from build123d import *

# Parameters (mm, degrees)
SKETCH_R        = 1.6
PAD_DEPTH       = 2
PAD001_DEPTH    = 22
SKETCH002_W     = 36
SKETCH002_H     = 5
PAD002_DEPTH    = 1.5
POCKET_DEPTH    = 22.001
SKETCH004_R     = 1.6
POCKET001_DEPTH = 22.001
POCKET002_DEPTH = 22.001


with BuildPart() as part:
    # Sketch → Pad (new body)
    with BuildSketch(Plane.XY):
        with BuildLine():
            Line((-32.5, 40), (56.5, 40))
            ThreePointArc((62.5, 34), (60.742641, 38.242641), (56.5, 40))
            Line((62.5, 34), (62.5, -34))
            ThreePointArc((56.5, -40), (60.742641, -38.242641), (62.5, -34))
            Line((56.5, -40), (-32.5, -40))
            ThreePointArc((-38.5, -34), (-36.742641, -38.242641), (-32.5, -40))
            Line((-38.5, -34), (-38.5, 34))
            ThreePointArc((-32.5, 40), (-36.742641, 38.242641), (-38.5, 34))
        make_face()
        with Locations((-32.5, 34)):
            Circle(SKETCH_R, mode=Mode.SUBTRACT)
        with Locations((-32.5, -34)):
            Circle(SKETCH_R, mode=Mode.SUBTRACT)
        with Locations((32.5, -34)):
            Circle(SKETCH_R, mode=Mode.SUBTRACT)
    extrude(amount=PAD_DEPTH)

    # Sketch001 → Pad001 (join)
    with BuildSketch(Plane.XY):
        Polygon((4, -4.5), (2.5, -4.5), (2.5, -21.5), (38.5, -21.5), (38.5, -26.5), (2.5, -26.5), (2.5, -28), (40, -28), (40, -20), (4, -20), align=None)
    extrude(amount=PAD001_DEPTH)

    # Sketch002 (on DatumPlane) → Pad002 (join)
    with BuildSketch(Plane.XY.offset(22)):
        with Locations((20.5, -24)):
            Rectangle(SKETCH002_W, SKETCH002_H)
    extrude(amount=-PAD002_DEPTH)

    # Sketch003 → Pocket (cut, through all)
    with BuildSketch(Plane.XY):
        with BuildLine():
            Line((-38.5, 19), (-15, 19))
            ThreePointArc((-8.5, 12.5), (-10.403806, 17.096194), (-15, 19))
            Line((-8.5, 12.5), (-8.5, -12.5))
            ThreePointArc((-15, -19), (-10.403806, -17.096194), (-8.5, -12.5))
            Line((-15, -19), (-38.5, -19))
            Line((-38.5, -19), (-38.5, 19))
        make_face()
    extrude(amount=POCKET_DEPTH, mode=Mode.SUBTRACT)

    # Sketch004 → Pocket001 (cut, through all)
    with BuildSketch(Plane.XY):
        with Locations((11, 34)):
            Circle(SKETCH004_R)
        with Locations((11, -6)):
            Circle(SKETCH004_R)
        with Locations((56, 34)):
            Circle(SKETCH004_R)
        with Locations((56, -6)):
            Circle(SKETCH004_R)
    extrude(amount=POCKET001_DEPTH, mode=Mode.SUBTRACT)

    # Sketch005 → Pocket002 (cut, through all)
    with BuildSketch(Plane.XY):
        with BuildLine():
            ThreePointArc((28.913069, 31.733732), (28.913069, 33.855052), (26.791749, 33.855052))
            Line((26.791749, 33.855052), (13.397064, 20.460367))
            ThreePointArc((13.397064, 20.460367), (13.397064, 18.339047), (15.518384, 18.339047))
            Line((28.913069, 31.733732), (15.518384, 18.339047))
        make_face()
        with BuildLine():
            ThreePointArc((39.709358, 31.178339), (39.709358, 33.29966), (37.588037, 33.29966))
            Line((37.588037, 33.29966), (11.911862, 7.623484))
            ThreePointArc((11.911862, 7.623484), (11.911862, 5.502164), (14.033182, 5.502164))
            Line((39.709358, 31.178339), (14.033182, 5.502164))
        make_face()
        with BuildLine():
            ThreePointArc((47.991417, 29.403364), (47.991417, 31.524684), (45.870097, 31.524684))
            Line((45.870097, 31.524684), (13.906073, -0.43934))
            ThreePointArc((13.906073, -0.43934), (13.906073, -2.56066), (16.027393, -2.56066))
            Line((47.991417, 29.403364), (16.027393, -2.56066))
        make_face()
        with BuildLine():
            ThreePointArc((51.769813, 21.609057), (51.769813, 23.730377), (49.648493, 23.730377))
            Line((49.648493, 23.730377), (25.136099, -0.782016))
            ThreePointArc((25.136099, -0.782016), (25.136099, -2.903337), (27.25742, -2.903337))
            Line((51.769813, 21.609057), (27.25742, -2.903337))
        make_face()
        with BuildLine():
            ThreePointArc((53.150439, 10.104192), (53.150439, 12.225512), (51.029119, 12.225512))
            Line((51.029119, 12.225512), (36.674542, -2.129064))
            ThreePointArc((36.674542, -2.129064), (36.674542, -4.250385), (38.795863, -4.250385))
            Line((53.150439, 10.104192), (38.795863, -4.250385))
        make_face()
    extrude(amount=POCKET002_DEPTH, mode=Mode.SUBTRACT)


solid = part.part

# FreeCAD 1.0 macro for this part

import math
import FreeCAD as App
import Part
import Sketcher
from FreeCAD import Vector
Q = App.Units.Quantity


def add_polygon(sketch, points):
    """Adds a closed chain of lines whose ends are joined by coincident constraints."""
    first, n = sketch.GeometryCount, len(points)
    for a, b in zip(points, points[1:] + points[:1]):
        sketch.addGeometry(Part.LineSegment(App.Vector(*a, 0), App.Vector(*b, 0)), False)
    for i in range(n):
        sketch.addConstraint(Sketcher.Constraint("Coincident", first + i, 2, first + (i + 1) % n, 1))

doc = App.newDocument("Part")
body = doc.addObject("PartDesign::Body", "Body")

sketch1 = doc.addObject("Sketcher::SketchObject", "Sketch")
body.addObject(sketch1)
sketch1.AttachmentSupport = (doc.XY_Plane, [""])
sketch1.MapMode = "FlatFace"
sketch1.addGeometry([
    Part.LineSegment(Vector(56.5, 40, 0), Vector(-32.5, 40, 0)),
    Part.ArcOfCircle(Part.Circle(Vector(-32.5, 34, 0), Vector(0, 0, 1), 6), math.radians(90), math.radians(180)),
    Part.LineSegment(Vector(-38.5, 34, 0), Vector(-38.5, -34, 0)),
    Part.ArcOfCircle(Part.Circle(Vector(-32.5, -34, 0), Vector(0, 0, 1), 6), math.radians(180), math.radians(270)),
    Part.LineSegment(Vector(-32.5, -40, 0), Vector(56.5, -40, 0)),
    Part.ArcOfCircle(Part.Circle(Vector(56.5, -34, 0), Vector(0, 0, 1), 6), math.radians(-90), math.radians(0)),
    Part.LineSegment(Vector(62.5, -34, 0), Vector(62.5, 34, 0)),
    Part.ArcOfCircle(Part.Circle(Vector(56.5, 34, 0), Vector(0, 0, 1), 6), math.radians(0), math.radians(90)),
    Part.Circle(Vector(32.5, -34, 0), Vector(0, 0, 1), 1.6),
    Part.Circle(Vector(-32.5, -34, 0), Vector(0, 0, 1), 1.6),
    Part.Circle(Vector(-32.5, 34, 0), Vector(0, 0, 1), 1.6),
], False)
sketch1.addConstraint([
    Sketcher.Constraint("Tangent", 0, 2, 1, 1),
    Sketcher.Constraint("Tangent", 1, 2, 2, 1),
    Sketcher.Constraint("Tangent", 2, 2, 3, 1),
    Sketcher.Constraint("Tangent", 3, 2, 4, 1),
    Sketcher.Constraint("Tangent", 4, 2, 5, 1),
    Sketcher.Constraint("Tangent", 5, 2, 6, 1),
    Sketcher.Constraint("Tangent", 6, 2, 7, 1),
    Sketcher.Constraint("Tangent", 7, 2, 0, 1),
    Sketcher.Constraint("Horizontal", 0),
    Sketcher.Constraint("Vertical", 2),
    Sketcher.Constraint("Horizontal", 4),
    Sketcher.Constraint("Vertical", 6),
    Sketcher.Constraint("Coincident", 9, 3, 3, 3),
    Sketcher.Constraint("Coincident", 10, 3, 1, 3),
    Sketcher.Constraint("Equal", 1, 3),
    Sketcher.Constraint("Equal", 3, 5),
    Sketcher.Constraint("Equal", 5, 7),
    Sketcher.Constraint("Equal", 8, 9),
    Sketcher.Constraint("Equal", 9, 10),
    Sketcher.Constraint("Symmetric", 1, 3, 8, 3, -1, 1),
    Sketcher.Constraint("Horizontal", 5, 3, 8, 3),
    Sketcher.Constraint("Radius", 1, 5.999999),
    Sketcher.Constraint("Diameter", 8, 3.2),
    Sketcher.Constraint("DistanceX", 0, 2, 0, 1, 89.0),
    Sketcher.Constraint("DistanceY", 2, 2, 2, 1, 68.0),
    Sketcher.Constraint("DistanceX", 8, 3, 5, 3, 24.000001),
])
pad1 = doc.addObject("PartDesign::Pad", "Pad")
body.addObject(pad1)
pad1.Profile = sketch1
pad1.Length = 2

sketch2 = doc.addObject("Sketcher::SketchObject", "Sketch001")
body.addObject(sketch2)
sketch2.AttachmentSupport = (doc.XY_Plane, [""])
sketch2.MapMode = "FlatFace"
add_polygon(sketch2, [(4, -4.5), (2.5, -4.5), (2.5, -21.5), (38.5, -21.5), (38.5, -26.5), (2.5, -26.5), (2.5, -28), (40, -28), (40, -20), (4, -20)])
sketch2.addConstraint([
    Sketcher.Constraint("Horizontal", 0),
    Sketcher.Constraint("Vertical", 1),
    Sketcher.Constraint("Horizontal", 2),
    Sketcher.Constraint("Vertical", 3),
    Sketcher.Constraint("Horizontal", 4),
    Sketcher.Constraint("Vertical", 5),
    Sketcher.Constraint("Horizontal", 6),
    Sketcher.Constraint("Vertical", 7),
    Sketcher.Constraint("Horizontal", 8),
    Sketcher.Constraint("Vertical", 9),
    Sketcher.Constraint("Vertical", 1, 2, 4, 2),
    Sketcher.Constraint("Equal", 4, 8),
    Sketcher.Constraint("Equal", 0, 5),
    Sketcher.Constraint("DistanceX", 2, 1, 2, 2, 36.0),
    Sketcher.Constraint("DistanceY", 1, 2, 1, 1, 17.0),
    Sketcher.Constraint("DistanceY", 3, 2, 3, 1, 5.0),
    Sketcher.Constraint("DistanceY", 7, 1, 7, 2, 8.0),
    Sketcher.Constraint("DistanceX", 0, 2, 0, 1, 1.5),
    Sketcher.Constraint("DistanceY", 5, 2, -1, 1, 28.0),
    Sketcher.Constraint("DistanceX", -1, 1, 6, 2, 40.0),
])
pad2 = doc.addObject("PartDesign::Pad", "Pad001")
body.addObject(pad2)
pad2.Profile = sketch2
pad2.Length = 22

sketch3 = doc.addObject("Sketcher::SketchObject", "Sketch002")
body.addObject(sketch3)
sketch3.AttachmentSupport = (doc.XY_Plane, [""])
sketch3.MapMode = "FlatFace"
sketch3.AttachmentOffset = App.Placement(Vector(0, 0, 22), App.Rotation())
add_polygon(sketch3, [(2, -22), (2, -26), (38, -26), (38, -22)])
sketch3.addConstraint([
    Sketcher.Constraint("Vertical", 0),
    Sketcher.Constraint("Horizontal", 1),
    Sketcher.Constraint("Vertical", 2),
    Sketcher.Constraint("Horizontal", 3),
    Sketcher.Constraint("DistanceX", 1, 1, 1, 2, 36.0),
    Sketcher.Constraint("DistanceY", 0, 2, 0, 1, 5.0),
    Sketcher.Constraint("DistanceX", -1, 1, 0, 2, 2.5),
    Sketcher.Constraint("DistanceY", 0, 2, -1, 1, 26.5),
])
pad3 = doc.addObject("PartDesign::Pad", "Pad002")
body.addObject(pad3)
pad3.Profile = sketch3
pad3.Length = 1.5
pad3.Reversed = True

sketch4 = doc.addObject("Sketcher::SketchObject", "Sketch003")
body.addObject(sketch4)
sketch4.AttachmentSupport = (doc.XY_Plane, [""])
sketch4.MapMode = "FlatFace"
sketch4.addGeometry([
    Part.LineSegment(Vector(-15, 19, 0), Vector(-38, 19, 0)),
    Part.LineSegment(Vector(-38, 19, 0), Vector(-38, -19, 0)),
    Part.LineSegment(Vector(-38, -19, 0), Vector(-15, -19, 0)),
    Part.ArcOfCircle(Part.Circle(Vector(-15, -12, 0), Vector(0, 0, 1), 7), math.radians(-90), math.radians(0)),
    Part.LineSegment(Vector(-8, -12, 0), Vector(-8, 12, 0)),
    Part.ArcOfCircle(Part.Circle(Vector(-15, 12, 0), Vector(0, 0, 1), 7), math.radians(0), math.radians(90)),
], False)
sketch4.addConstraint([
    Sketcher.Constraint("Coincident", 0, 2, 1, 1),
    Sketcher.Constraint("Coincident", 1, 2, 2, 1),
    Sketcher.Constraint("Tangent", 2, 2, 3, 1),
    Sketcher.Constraint("Tangent", 3, 2, 4, 1),
    Sketcher.Constraint("Tangent", 4, 2, 5, 1),
    Sketcher.Constraint("Tangent", 5, 2, 0, 1),
    Sketcher.Constraint("Horizontal", 0),
    Sketcher.Constraint("Vertical", 1),
    Sketcher.Constraint("Horizontal", 2),
    Sketcher.Constraint("Vertical", 4),
    Sketcher.Constraint("Equal", 3, 5),
    Sketcher.Constraint("Radius", 3, 6.5),
    Sketcher.Constraint("DistanceY", 1, 2, 1, 1, 38.0),
    Sketcher.Constraint("DistanceX", 0, 2, 0, 1, 23.5),
    Sketcher.Constraint("DistanceX", 3, 3, -1, 1, 15.0),
    Sketcher.Constraint("DistanceY", -1, 1, 0, 2, 19.0),
])
pocket1 = doc.addObject("PartDesign::Pocket", "Pocket")
body.addObject(pocket1)
pocket1.Profile = sketch4
pocket1.Type = "ThroughAll"
pocket1.Reversed = True

sketch5 = doc.addObject("Sketcher::SketchObject", "Sketch004")
body.addObject(sketch5)
sketch5.AttachmentSupport = (doc.XY_Plane, [""])
sketch5.MapMode = "FlatFace"
sketch5.addGeometry([
    Part.Circle(Vector(11, 34, 0), Vector(0, 0, 1), 1.6),
    Part.Circle(Vector(11, -6, 0), Vector(0, 0, 1), 1.6),
    Part.Circle(Vector(56, 34, 0), Vector(0, 0, 1), 1.6),
    Part.Circle(Vector(56, -6, 0), Vector(0, 0, 1), 1.6),
], False)
sketch5.addConstraint([
    Sketcher.Constraint("Equal", 0, 1),
    Sketcher.Constraint("Equal", 1, 2),
    Sketcher.Constraint("Equal", 2, 3),
    Sketcher.Constraint("Horizontal", 0, 3, 2, 3),
    Sketcher.Constraint("Horizontal", 1, 3, 3, 3),
    Sketcher.Constraint("Vertical", 0, 3, 1, 3),
    Sketcher.Constraint("Vertical", 2, 3, 3, 3),
    Sketcher.Constraint("Diameter", 0, 3.2),
    Sketcher.Constraint("DistanceX", -1, 1, 0, 3, 11.0),
    Sketcher.Constraint("DistanceY", -1, 1, 0, 3, 34.0),
    Sketcher.Constraint("DistanceY", 1, 3, -1, 1, 6.0),
    Sketcher.Constraint("DistanceX", -1, 1, 2, 3, 56.0),
])
pocket2 = doc.addObject("PartDesign::Pocket", "Pocket001")
body.addObject(pocket2)
pocket2.Profile = sketch5
pocket2.Type = "ThroughAll"
pocket2.Reversed = True

sketch6 = doc.addObject("Sketcher::SketchObject", "Sketch005")
body.addObject(sketch6)
sketch6.AttachmentSupport = (doc.XY_Plane, [""])
sketch6.MapMode = "FlatFace"
sketch6.addGeometry([
    Part.ArcOfCircle(Part.Circle(Vector(27.9, 32.8, 0), Vector(0, 0, 1), 1.5), math.radians(-45), math.radians(135)),
    Part.LineSegment(Vector(26.8, 33.9, 0), Vector(13.4, 20.5, 0)),
    Part.ArcOfCircle(Part.Circle(Vector(14.5, 19.4, 0), Vector(0, 0, 1), 1.5), math.radians(135), math.radians(315)),
    Part.LineSegment(Vector(15.5, 18.3, 0), Vector(28.9, 31.7, 0)),
    Part.ArcOfCircle(Part.Circle(Vector(38.6, 32.2, 0), Vector(0, 0, 1), 1.5), math.radians(-45), math.radians(135)),
    Part.LineSegment(Vector(37.6, 33.3, 0), Vector(11.9, 7.6, 0)),
    Part.ArcOfCircle(Part.Circle(Vector(13, 6.6, 0), Vector(0, 0, 1), 1.5), math.radians(135), math.radians(315)),
    Part.LineSegment(Vector(14, 5.5, 0), Vector(39.7, 31.2, 0)),
    Part.ArcOfCircle(Part.Circle(Vector(46.9, 30.5, 0), Vector(0, 0, 1), 1.5), math.radians(-45), math.radians(135)),
    Part.LineSegment(Vector(45.9, 31.5, 0), Vector(13.9, -0.4, 0)),
    Part.ArcOfCircle(Part.Circle(Vector(15, -1.5, 0), Vector(0, 0, 1), 1.5), math.radians(135), math.radians(315)),
    Part.LineSegment(Vector(16, -2.6, 0), Vector(48, 29.4, 0)),
    Part.ArcOfCircle(Part.Circle(Vector(50.7, 22.7, 0), Vector(0, 0, 1), 1.5), math.radians(-45), math.radians(135)),
    Part.LineSegment(Vector(49.6, 23.7, 0), Vector(25.1, -0.8, 0)),
    Part.ArcOfCircle(Part.Circle(Vector(26.2, -1.8, 0), Vector(0, 0, 1), 1.5), math.radians(135), math.radians(315)),
    Part.LineSegment(Vector(27.3, -2.9, 0), Vector(51.8, 21.6, 0)),
    Part.ArcOfCircle(Part.Circle(Vector(52.1, 11.2, 0), Vector(0, 0, 1), 1.5), math.radians(-45), math.radians(135)),
    Part.LineSegment(Vector(51, 12.2, 0), Vector(36.7, -2.1, 0)),
    Part.ArcOfCircle(Part.Circle(Vector(37.7, -3.2, 0), Vector(0, 0, 1), 1.5), math.radians(135), math.radians(315)),
    Part.LineSegment(Vector(38.8, -4.3, 0), Vector(53.2, 10.1, 0)),
], False)
sketch6.addConstraint([
    Sketcher.Constraint("Tangent", 0, 2, 1, 1),
    Sketcher.Constraint("Tangent", 1, 2, 2, 1),
    Sketcher.Constraint("Tangent", 2, 2, 3, 1),
    Sketcher.Constraint("Tangent", 3, 2, 0, 1),
    Sketcher.Constraint("Tangent", 4, 2, 5, 1),
    Sketcher.Constraint("Tangent", 5, 2, 6, 1),
    Sketcher.Constraint("Tangent", 6, 2, 7, 1),
    Sketcher.Constraint("Tangent", 7, 2, 4, 1),
    Sketcher.Constraint("Tangent", 8, 2, 9, 1),
    Sketcher.Constraint("Tangent", 9, 2, 10, 1),
    Sketcher.Constraint("Tangent", 10, 2, 11, 1),
    Sketcher.Constraint("Tangent", 11, 2, 8, 1),
    Sketcher.Constraint("Tangent", 12, 2, 13, 1),
    Sketcher.Constraint("Tangent", 13, 2, 14, 1),
    Sketcher.Constraint("Tangent", 14, 2, 15, 1),
    Sketcher.Constraint("Tangent", 15, 2, 12, 1),
    Sketcher.Constraint("Tangent", 16, 2, 17, 1),
    Sketcher.Constraint("Tangent", 17, 2, 18, 1),
    Sketcher.Constraint("Tangent", 18, 2, 19, 1),
    Sketcher.Constraint("Tangent", 19, 2, 16, 1),
    Sketcher.Constraint("Equal", 0, 2),
    Sketcher.Constraint("Equal", 2, 4),
    Sketcher.Constraint("Equal", 4, 6),
    Sketcher.Constraint("Equal", 6, 8),
    Sketcher.Constraint("Equal", 8, 10),
    Sketcher.Constraint("Equal", 10, 12),
    Sketcher.Constraint("Equal", 12, 14),
    Sketcher.Constraint("Equal", 14, 16),
    Sketcher.Constraint("Equal", 16, 18),
    Sketcher.Constraint("Parallel", 3, 5),
    Sketcher.Constraint("Parallel", 7, 9),
    Sketcher.Constraint("Parallel", 11, 13),
    Sketcher.Constraint("Parallel", 15, 17),
    Sketcher.Constraint("Radius", 0, 1.5),
    Sketcher.Constraint("Angle", 1, Q("-135 deg")),
    Sketcher.Constraint("DistanceY", 10, 3, -1, 1, 1.5),
    Sketcher.Constraint("DistanceY", -1, 1, 4, 3, 32.238999),
    Sketcher.Constraint("DistanceX", -1, 1, 13, 2, 25.136099),
    Sketcher.Constraint("DistanceY", 6, 3, 8, 3, 23.9012),
    Sketcher.Constraint("DistanceY", 14, 3, 6, 3, 8.405501),
    Sketcher.Constraint("DistanceX", 7, 2, 8, 3, 7.221399),
    Sketcher.Constraint("Distance", 13, 34.665759),
    Sketcher.Constraint("DistanceX", -1, 1, 0, 3, 27.852409),
    Sketcher.Constraint("DistanceX", -1, 1, 16, 3, 52.089779),
    Sketcher.Constraint("DistanceY", -1, 1, 0, 2, 33.855052),
    Sketcher.Constraint("DistanceX", -1, 1, 5, 2, 11.911862),
    Sketcher.Constraint("DistanceX", -1, 1, 7, 2, 39.709358),
    Sketcher.Constraint("DistanceY", -1, 1, 16, 2, 12.225512),
    Sketcher.Constraint("DistanceX", 2, 3, 10, 3, 0.509009),
    Sketcher.Constraint("DistanceX", 10, 3, 18, 3, 22.76847),
])
pocket3 = doc.addObject("PartDesign::Pocket", "Pocket002")
body.addObject(pocket3)
pocket3.Profile = sketch6
pocket3.Type = "ThroughAll"
pocket3.Reversed = True

doc.recompute()
